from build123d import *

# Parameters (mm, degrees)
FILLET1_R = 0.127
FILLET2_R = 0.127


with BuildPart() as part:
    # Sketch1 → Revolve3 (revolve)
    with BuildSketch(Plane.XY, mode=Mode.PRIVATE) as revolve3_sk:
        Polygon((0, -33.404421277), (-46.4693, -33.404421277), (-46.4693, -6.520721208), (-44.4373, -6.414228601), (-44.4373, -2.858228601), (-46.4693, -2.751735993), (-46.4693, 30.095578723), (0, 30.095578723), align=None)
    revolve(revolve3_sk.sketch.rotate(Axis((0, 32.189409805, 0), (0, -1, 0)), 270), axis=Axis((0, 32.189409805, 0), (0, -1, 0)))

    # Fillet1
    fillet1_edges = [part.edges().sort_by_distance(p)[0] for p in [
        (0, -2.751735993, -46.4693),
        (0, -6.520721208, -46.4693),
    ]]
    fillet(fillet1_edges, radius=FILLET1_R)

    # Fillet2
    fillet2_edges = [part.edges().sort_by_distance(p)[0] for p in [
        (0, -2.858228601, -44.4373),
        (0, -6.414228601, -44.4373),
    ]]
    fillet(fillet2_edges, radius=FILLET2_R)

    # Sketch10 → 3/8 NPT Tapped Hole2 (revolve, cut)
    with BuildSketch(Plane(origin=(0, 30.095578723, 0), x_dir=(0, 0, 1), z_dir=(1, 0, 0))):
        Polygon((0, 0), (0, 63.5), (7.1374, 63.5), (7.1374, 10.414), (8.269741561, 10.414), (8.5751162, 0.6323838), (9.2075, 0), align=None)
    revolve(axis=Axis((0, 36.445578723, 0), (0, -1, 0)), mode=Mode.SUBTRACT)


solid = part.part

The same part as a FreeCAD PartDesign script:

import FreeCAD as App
import Part
import Sketcher
Q = App.Units.Quantity


def edges_at(feature, points):
    """Names of the edges that pass closest to the given points."""
    edges = feature.Shape.Edges
    near = lambda p: min(range(len(edges)), key=lambda i: edges[i].distToShape(Part.Vertex(*p))[0])
    return sorted({f"Edge{near(p) + 1}" for p in points})

doc = App.newDocument("Part")
params = doc.addObject("Spreadsheet::Sheet", "Params")
for row, (alias, value) in enumerate([
    ("sketch1_height", "2.5 in"),
    ("sketch1_height2", "0.14 in"),
    ("revolution_angle", "360 deg"),
    ("fillet_radius", "0.005 in"),
    ("fillet2_radius", "0.005 in"),
    ("sketch2_width", "2.5 in"),
    ("sketch2_width2", "2.09 in"),
    ("sketch2_height", "0.281 in"),
    ("groove_angle", "360 deg"),
], start=1):
    params.set(f"A{row}", alias)
    params.set(f"B{row}", "=" + value)
    params.setAlias(f"B{row}", alias)

body = doc.addObject("PartDesign::Body", "Body")

# Sketch on XY plane
sketch1 = body.newObject("Sketcher::SketchObject", "Sketch")
sketch1.AttachmentSupport = (doc.getObject("XY_Plane"), [""])
sketch1.MapMode = "FlatFace"
sketch1.addGeometry(Part.LineSegment(App.Vector(-46.5, -33.4, 0), App.Vector(0, -33.4, 0)), False)
sketch1.addGeometry(Part.LineSegment(App.Vector(0, -33.4, 0), App.Vector(0, 30.1, 0)), False)
sketch1.addGeometry(Part.LineSegment(App.Vector(0, 30.1, 0), App.Vector(-46.5, 30.1, 0)), False)
sketch1.addGeometry(Part.LineSegment(App.Vector(-46.5, 30.1, 0), App.Vector(-46.5, -2.8, 0)), False)
sketch1.addGeometry(Part.LineSegment(App.Vector(-46.5, -2.8, 0), App.Vector(-44.4, -2.9, 0)), False)
sketch1.addGeometry(Part.LineSegment(App.Vector(-44.4, -2.9, 0), App.Vector(-44.4, -6.4, 0)), False)
sketch1.addGeometry(Part.LineSegment(App.Vector(-44.4, -6.4, 0), App.Vector(-46.5, -6.5, 0)), False)
sketch1.addGeometry(Part.LineSegment(App.Vector(-46.5, -6.5, 0), App.Vector(-46.5, -33.4, 0)), False)
sketch1.addConstraint(Sketcher.Constraint("Coincident", 0, 2, 1, 1))
sketch1.addConstraint(Sketcher.Constraint("Coincident", 1, 2, 2, 1))
sketch1.addConstraint(Sketcher.Constraint("Coincident", 2, 2, 3, 1))
sketch1.addConstraint(Sketcher.Constraint("Coincident", 3, 2, 4, 1))
sketch1.addConstraint(Sketcher.Constraint("Coincident", 4, 2, 5, 1))
sketch1.addConstraint(Sketcher.Constraint("Coincident", 5, 2, 6, 1))
sketch1.addConstraint(Sketcher.Constraint("Coincident", 6, 2, 7, 1))
sketch1.addConstraint(Sketcher.Constraint("Coincident", 7, 2, 0, 1))
sketch1.addConstraint(Sketcher.Constraint("Horizontal", 0))
sketch1.addConstraint(Sketcher.Constraint("Vertical", 1))
sketch1.addConstraint(Sketcher.Constraint("Horizontal", 2))
sketch1.addConstraint(Sketcher.Constraint("Vertical", 3))
sketch1.addConstraint(Sketcher.Constraint("Vertical", 5))
sketch1.addConstraint(Sketcher.Constraint("Vertical", 7))
sketch1.addConstraint(Sketcher.Constraint("PointOnObject", 0, 2, -2))
sketch1.addConstraint(Sketcher.Constraint("Vertical", 3, 2, 6, 2))
sketch1.addConstraint(Sketcher.Constraint("Equal", 4, 6))
sketch1.addConstraint(Sketcher.Constraint("DistanceY", 1, 1, 1, 2, Q("2.5 in")))
sketch1.addConstraint(Sketcher.Constraint("Angle", 4, Q("-3 deg")))
sketch1.addConstraint(Sketcher.Constraint("DistanceY", 5, 2, 5, 1, Q("0.14 in")))
sketch1.addConstraint(Sketcher.Constraint("DistanceX", 3, 2, 4, 2, Q("0.08 in")))
sketch1.addConstraint(Sketcher.Constraint("DistanceX", 0, 1, 0, 2, Q("1.8295 in")))
sketch1.addConstraint(Sketcher.Constraint("DistanceY", 7, 2, 7, 1, Q("26.8837 mm")))
sketch1.addConstraint(Sketcher.Constraint("DistanceY", 0, 2, -1, 1, Q("33.404421 mm")))
sketch1.setExpression("Constraints[17]", "Params.sketch1_height")
sketch1.setExpression("Constraints[19]", "Params.sketch1_height2")
revolution = body.newObject("PartDesign::Revolution", "Revolution")
revolution.Profile = sketch1
revolution.ReferenceAxis = (sketch1, ["V_Axis"])
revolution.setExpression("Angle", "Params.revolution_angle")
doc.recompute()

fillet = body.newObject("PartDesign::Fillet", "Fillet")
fillet.Base = (revolution, edges_at(revolution, [(0, -2.752, -46.469), (0, -6.521, -46.469)]))
fillet.setExpression("Radius", "Params.fillet_radius")
doc.recompute()

fillet2 = body.newObject("PartDesign::Fillet", "Fillet001")
fillet2.Base = (fillet, edges_at(fillet, [(0, -2.858, -44.437), (0, -6.414, -44.437)]))
fillet2.setExpression("Radius", "Params.fillet2_radius")

# Sketch on YZ plane
sketch2 = body.newObject("Sketcher::SketchObject", "Sketch001")
sketch2.AttachmentSupport = (doc.getObject("YZ_Plane"), [""])
sketch2.MapMode = "FlatFace"
sketch2.addGeometry(Part.LineSegment(App.Vector(-33.4, 0, 0), App.Vector(30.1, 0, 0)), False)
sketch2.addGeometry(Part.LineSegment(App.Vector(30.1, 0, 0), App.Vector(30.1, 9.2, 0)), False)
sketch2.addGeometry(Part.LineSegment(App.Vector(30.1, 9.2, 0), App.Vector(29.5, 8.6, 0)), False)
sketch2.addGeometry(Part.LineSegment(App.Vector(29.5, 8.6, 0), App.Vector(19.7, 8.3, 0)), False)
sketch2.addGeometry(Part.LineSegment(App.Vector(19.7, 8.3, 0), App.Vector(19.7, 7.1, 0)), False)
sketch2.addGeometry(Part.LineSegment(App.Vector(19.7, 7.1, 0), App.Vector(-33.4, 7.1, 0)), False)
sketch2.addGeometry(Part.LineSegment(App.Vector(-33.4, 7.1, 0), App.Vector(-33.4, 0, 0)), False)
sketch2.addConstraint(Sketcher.Constraint("Coincident", 0, 2, 1, 1))
sketch2.addConstraint(Sketcher.Constraint("Coincident", 1, 2, 2, 1))
sketch2.addConstraint(Sketcher.Constraint("Coincident", 2, 2, 3, 1))
sketch2.addConstraint(Sketcher.Constraint("Coincident", 3, 2, 4, 1))
sketch2.addConstraint(Sketcher.Constraint("Coincident", 4, 2, 5, 1))
sketch2.addConstraint(Sketcher.Constraint("Coincident", 5, 2, 6, 1))
sketch2.addConstraint(Sketcher.Constraint("Coincident", 6, 2, 0, 1))
sketch2.addConstraint(Sketcher.Constraint("Horizontal", 0))
sketch2.addConstraint(Sketcher.Constraint("Vertical", 1))
sketch2.addConstraint(Sketcher.Constraint("Vertical", 4))
sketch2.addConstraint(Sketcher.Constraint("Horizontal", 5))
sketch2.addConstraint(Sketcher.Constraint("Vertical", 6))
sketch2.addConstraint(Sketcher.Constraint("PointOnObject", 0, 2, -1))
sketch2.addConstraint(Sketcher.Constraint("DistanceX", 0, 1, 0, 2, Q("2.5 in")))
sketch2.addConstraint(Sketcher.Constraint("Angle", 2, Q("-135 deg")))
sketch2.addConstraint(Sketcher.Constraint("DistanceX", 5, 2, 5, 1, Q("2.09 in")))
sketch2.addConstraint(Sketcher.Constraint("DistanceY", 6, 2, 6, 1, Q("0.281 in")))
sketch2.addConstraint(Sketcher.Constraint("DistanceY", 1, 1, 1, 2, Q("0.3625 in")))
sketch2.addConstraint(Sketcher.Constraint("DistanceY", 4, 2, 4, 1, Q("1.132342 mm")))
sketch2.addConstraint(Sketcher.Constraint("Distance", 3, Q("9.786382 mm")))
sketch2.addConstraint(Sketcher.Constraint("DistanceX", -1, 1, 0, 2, Q("30.095579 mm")))
sketch2.setExpression("Constraints[13]", "Params.sketch2_width")
sketch2.setExpression("Constraints[15]", "Params.sketch2_width2")
sketch2.setExpression("Constraints[16]", "Params.sketch2_height")
groove = body.newObject("PartDesign::Groove", "Groove")
groove.Profile = sketch2
groove.ReferenceAxis = (sketch2, ["H_Axis"])
groove.setExpression("Angle", "Params.groove_angle")

doc.recompute()
